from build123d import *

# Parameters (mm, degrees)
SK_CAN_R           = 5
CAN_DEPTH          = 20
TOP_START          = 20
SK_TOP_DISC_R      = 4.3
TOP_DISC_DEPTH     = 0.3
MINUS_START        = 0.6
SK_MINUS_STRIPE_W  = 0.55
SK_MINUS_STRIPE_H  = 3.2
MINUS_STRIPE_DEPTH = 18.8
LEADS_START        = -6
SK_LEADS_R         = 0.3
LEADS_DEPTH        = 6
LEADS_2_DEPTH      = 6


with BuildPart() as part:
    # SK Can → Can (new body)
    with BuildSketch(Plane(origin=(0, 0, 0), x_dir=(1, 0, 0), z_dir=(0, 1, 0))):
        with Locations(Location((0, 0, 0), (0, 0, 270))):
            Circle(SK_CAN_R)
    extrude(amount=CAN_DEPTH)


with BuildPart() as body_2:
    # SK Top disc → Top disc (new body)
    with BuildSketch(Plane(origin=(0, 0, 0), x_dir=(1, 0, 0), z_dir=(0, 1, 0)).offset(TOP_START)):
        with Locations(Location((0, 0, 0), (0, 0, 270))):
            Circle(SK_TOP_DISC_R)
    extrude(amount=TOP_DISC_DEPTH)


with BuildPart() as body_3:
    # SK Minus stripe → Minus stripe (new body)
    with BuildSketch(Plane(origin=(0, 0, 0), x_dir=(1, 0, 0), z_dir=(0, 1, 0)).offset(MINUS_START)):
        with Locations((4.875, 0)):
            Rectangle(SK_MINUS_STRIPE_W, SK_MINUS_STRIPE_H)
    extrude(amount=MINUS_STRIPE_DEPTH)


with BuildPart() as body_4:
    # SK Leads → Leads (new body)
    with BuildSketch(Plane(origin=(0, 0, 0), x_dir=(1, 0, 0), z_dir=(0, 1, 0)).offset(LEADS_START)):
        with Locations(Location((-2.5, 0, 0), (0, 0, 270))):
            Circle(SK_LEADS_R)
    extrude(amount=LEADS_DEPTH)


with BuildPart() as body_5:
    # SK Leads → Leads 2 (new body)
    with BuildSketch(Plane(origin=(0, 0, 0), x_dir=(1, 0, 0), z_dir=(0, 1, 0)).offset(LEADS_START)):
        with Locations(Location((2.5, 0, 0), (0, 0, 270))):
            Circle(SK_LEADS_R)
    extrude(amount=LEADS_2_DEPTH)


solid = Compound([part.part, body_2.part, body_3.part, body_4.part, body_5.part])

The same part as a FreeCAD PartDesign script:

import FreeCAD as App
import Part
import Sketcher
Q = App.Units.Quantity

doc = App.newDocument("Part")
body = doc.addObject("PartDesign::Body", "Body")

# Sketch on XZ plane
sketch1 = body.newObject("Sketcher::SketchObject", "Sketch")
sketch1.AttachmentSupport = (doc.getObject("XZ_Plane"), [""])
sketch1.MapMode = "FlatFace"
sketch1.addGeometry(Part.Circle(App.Vector(0, 0, 0), App.Vector(0, 0, 1), 5), False)
sketch1.addConstraint(Sketcher.Constraint("Coincident", 0, 3, -1, 1))
sketch1.addConstraint(Sketcher.Constraint("Diameter", 0, Q("10 mm")))
pad1 = body.newObject("PartDesign::Pad", "Pad")
pad1.Profile = sketch1
pad1.Length = 20
pad1.Reversed = True
body2 = doc.addObject("PartDesign::Body", "Body001")

# Sketch on XZ plane
sketch2 = body2.newObject("Sketcher::SketchObject", "Sketch001")
sketch2.AttachmentSupport = (doc.getObject("XZ_Plane001"), [""])
sketch2.MapMode = "FlatFace"
sketch2.AttachmentOffset = App.Placement(App.Vector(0, 0, -20), App.Rotation())
sketch2.addGeometry(Part.Circle(App.Vector(0, 0, 0), App.Vector(0, 0, 1), 4.3), False)
sketch2.addConstraint(Sketcher.Constraint("Coincident", 0, 3, -1, 1))
sketch2.addConstraint(Sketcher.Constraint("Diameter", 0, Q("8.6 mm")))
pad2 = body2.newObject("PartDesign::Pad", "Pad001")
pad2.Profile = sketch2
pad2.Length = 0.3
pad2.Reversed = True
body3 = doc.addObject("PartDesign::Body", "Body002")

# Sketch on XZ plane
sketch3 = body3.newObject("Sketcher::SketchObject", "Sketch002")
sketch3.AttachmentSupport = (doc.getObject("XZ_Plane002"), [""])
sketch3.MapMode = "FlatFace"
sketch3.AttachmentOffset = App.Placement(App.Vector(0, 0, -0.6), App.Rotation())
sketch3.addGeometry(Part.LineSegment(App.Vector(4.6, -1.6, 0), App.Vector(4.6, 1.6, 0)), False)
sketch3.addGeometry(Part.LineSegment(App.Vector(4.6, 1.6, 0), App.Vector(5.15, 1.6, 0)), False)
sketch3.addGeometry(Part.LineSegment(App.Vector(5.15, 1.6, 0), App.Vector(5.15, -1.6, 0)), False)
sketch3.addGeometry(Part.LineSegment(App.Vector(5.15, -1.6, 0), App.Vector(4.6, -1.6, 0)), False)
sketch3.addConstraint(Sketcher.Constraint("Coincident", 0, 2, 1, 1))
sketch3.addConstraint(Sketcher.Constraint("Coincident", 1, 2, 2, 1))
sketch3.addConstraint(Sketcher.Constraint("Coincident", 2, 2, 3, 1))
sketch3.addConstraint(Sketcher.Constraint("Coincident", 3, 2, 0, 1))
sketch3.addConstraint(Sketcher.Constraint("Vertical", 0))
sketch3.addConstraint(Sketcher.Constraint("Horizontal", 1))
sketch3.addConstraint(Sketcher.Constraint("Vertical", 2))
sketch3.addConstraint(Sketcher.Constraint("Horizontal", 3))
sketch3.addConstraint(Sketcher.Constraint("DistanceY", 0, 1, 0, 2, Q("3.2 mm")))
sketch3.addConstraint(Sketcher.Constraint("DistanceX", 1, 1, 1, 2, Q("0.55 mm")))
sketch3.addConstraint(Sketcher.Constraint("DistanceX", -1, 1, 0, 2, Q("4.6 mm")))
sketch3.addConstraint(Sketcher.Constraint("DistanceY", -1, 1, 0, 2, Q("1.6 mm")))
pad3 = body3.newObject("PartDesign::Pad", "Pad002")
pad3.Profile = sketch3
pad3.Length = 18.8
pad3.Reversed = True
body4 = doc.addObject("PartDesign::Body", "Body003")

# Sketch on XZ plane
sketch4 = body4.newObject("Sketcher::SketchObject", "Sketch003")
sketch4.AttachmentSupport = (doc.getObject("XZ_Plane003"), [""])
sketch4.MapMode = "FlatFace"
sketch4.AttachmentOffset = App.Placement(App.Vector(0, 0, 6), App.Rotation())
sketch4.addGeometry(Part.Circle(App.Vector(-2.5, 0, 0), App.Vector(0, 0, 1), 0.3), False)
sketch4.addConstraint(Sketcher.Constraint("PointOnObject", 0, 3, -1))
sketch4.addConstraint(Sketcher.Constraint("Diameter", 0, Q("0.6 mm")))
sketch4.addConstraint(Sketcher.Constraint("DistanceX", 0, 3, -1, 1, Q("2.5 mm")))
pad4 = body4.newObject("PartDesign::Pad", "Pad003")
pad4.Profile = sketch4
pad4.Length = 6
pad4.Reversed = True
body5 = doc.addObject("PartDesign::Body", "Body004")

# Sketch on XZ plane
sketch5 = body5.newObject("Sketcher::SketchObject", "Sketch004")
sketch5.AttachmentSupport = (doc.getObject("XZ_Plane004"), [""])
sketch5.MapMode = "FlatFace"
sketch5.AttachmentOffset = App.Placement(App.Vector(0, 0, 6), App.Rotation())
sketch5.addGeometry(Part.Circle(App.Vector(2.5, 0, 0), App.Vector(0, 0, 1), 0.3), False)
sketch5.addConstraint(Sketcher.Constraint("PointOnObject", 0, 3, -1))
sketch5.addConstraint(Sketcher.Constraint("Diameter", 0, Q("0.6 mm")))
sketch5.addConstraint(Sketcher.Constraint("DistanceX", -1, 1, 0, 3, Q("2.5 mm")))
pad5 = body5.newObject("PartDesign::Pad", "Pad004")
pad5.Profile = sketch5
pad5.Length = 6
pad5.Reversed = True

doc.recompute()
